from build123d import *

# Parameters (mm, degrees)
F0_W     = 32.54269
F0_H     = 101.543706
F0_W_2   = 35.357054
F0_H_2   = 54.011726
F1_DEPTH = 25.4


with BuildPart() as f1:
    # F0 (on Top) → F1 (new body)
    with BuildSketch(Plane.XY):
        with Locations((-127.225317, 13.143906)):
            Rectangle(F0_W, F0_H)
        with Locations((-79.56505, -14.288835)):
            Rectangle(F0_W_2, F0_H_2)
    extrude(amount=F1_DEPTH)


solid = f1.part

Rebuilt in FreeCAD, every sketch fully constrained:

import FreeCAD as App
import Part
import Sketcher

V = App.Vector
Q = App.Units.Quantity

doc = App.newDocument("Part")
body = doc.addObject("PartDesign::Body", "Body")
body.AllowCompound = True

# Sketch on XY plane
sketch1 = body.newObject("Sketcher::SketchObject", "Sketch")
sketch1.AttachmentSupport = (doc.getObject("XY_Plane"), [""])
sketch1.MapMode = "FlatFace"
sketch1.addGeometry(Part.LineSegment(V(-143, 64, 0), V(-143, -38, 0)), False)
sketch1.addGeometry(Part.LineSegment(V(-143, -38, 0), V(-111, -38, 0)), False)
sketch1.addGeometry(Part.LineSegment(V(-111, -38, 0), V(-111, 64, 0)), False)
sketch1.addGeometry(Part.LineSegment(V(-111, 64, 0), V(-143, 64, 0)), False)
sketch1.addGeometry(Part.LineSegment(V(-97, 13, 0), V(-97, -41, 0)), False)
sketch1.addGeometry(Part.LineSegment(V(-97, -41, 0), V(-62, -41, 0)), False)
sketch1.addGeometry(Part.LineSegment(V(-62, -41, 0), V(-62, 13, 0)), False)
sketch1.addGeometry(Part.LineSegment(V(-62, 13, 0), V(-97, 13, 0)), False)
sketch1.addConstraint(Sketcher.Constraint("Coincident", 0, 2, 1, 1))
sketch1.addConstraint(Sketcher.Constraint("Coincident", 1, 2, 2, 1))
sketch1.addConstraint(Sketcher.Constraint("Coincident", 2, 2, 3, 1))
sketch1.addConstraint(Sketcher.Constraint("Coincident", 3, 2, 0, 1))
sketch1.addConstraint(Sketcher.Constraint("Coincident", 4, 2, 5, 1))
sketch1.addConstraint(Sketcher.Constraint("Coincident", 5, 2, 6, 1))
sketch1.addConstraint(Sketcher.Constraint("Coincident", 6, 2, 7, 1))
sketch1.addConstraint(Sketcher.Constraint("Coincident", 7, 2, 4, 1))
sketch1.addConstraint(Sketcher.Constraint("Vertical", 0))
sketch1.addConstraint(Sketcher.Constraint("Horizontal", 1))
sketch1.addConstraint(Sketcher.Constraint("Vertical", 2))
sketch1.addConstraint(Sketcher.Constraint("Horizontal", 3))
sketch1.addConstraint(Sketcher.Constraint("Vertical", 4))
sketch1.addConstraint(Sketcher.Constraint("Horizontal", 5))
sketch1.addConstraint(Sketcher.Constraint("Vertical", 6))
sketch1.addConstraint(Sketcher.Constraint("Horizontal", 7))
sketch1.addConstraint(Sketcher.Constraint("DistanceX", 1, 1, 1, 2, 32.54269))
sketch1.addConstraint(Sketcher.Constraint("DistanceX", 5, 1, 5, 2, 35.357054))
sketch1.addConstraint(Sketcher.Constraint("DistanceY", 0, 2, 0, 1, 101.543706))
sketch1.addConstraint(Sketcher.Constraint("DistanceY", 4, 2, 4, 1, 54.011726))
sketch1.addConstraint(Sketcher.Constraint("DistanceX", 0, 2, -1, 1, 143.496662))
sketch1.addConstraint(Sketcher.Constraint("DistanceY", -1, 1, 2, 2, 63.915759))
sketch1.addConstraint(Sketcher.Constraint("DistanceY", -1, 1, 6, 2, 12.717028))
sketch1.addConstraint(Sketcher.Constraint("DistanceX", 1, 2, 5, 2, 49.067449))
pad1 = body.newObject("PartDesign::Pad", "Pad")
pad1.Profile = sketch1
pad1.Length = Q("1 in")

doc.recompute()
